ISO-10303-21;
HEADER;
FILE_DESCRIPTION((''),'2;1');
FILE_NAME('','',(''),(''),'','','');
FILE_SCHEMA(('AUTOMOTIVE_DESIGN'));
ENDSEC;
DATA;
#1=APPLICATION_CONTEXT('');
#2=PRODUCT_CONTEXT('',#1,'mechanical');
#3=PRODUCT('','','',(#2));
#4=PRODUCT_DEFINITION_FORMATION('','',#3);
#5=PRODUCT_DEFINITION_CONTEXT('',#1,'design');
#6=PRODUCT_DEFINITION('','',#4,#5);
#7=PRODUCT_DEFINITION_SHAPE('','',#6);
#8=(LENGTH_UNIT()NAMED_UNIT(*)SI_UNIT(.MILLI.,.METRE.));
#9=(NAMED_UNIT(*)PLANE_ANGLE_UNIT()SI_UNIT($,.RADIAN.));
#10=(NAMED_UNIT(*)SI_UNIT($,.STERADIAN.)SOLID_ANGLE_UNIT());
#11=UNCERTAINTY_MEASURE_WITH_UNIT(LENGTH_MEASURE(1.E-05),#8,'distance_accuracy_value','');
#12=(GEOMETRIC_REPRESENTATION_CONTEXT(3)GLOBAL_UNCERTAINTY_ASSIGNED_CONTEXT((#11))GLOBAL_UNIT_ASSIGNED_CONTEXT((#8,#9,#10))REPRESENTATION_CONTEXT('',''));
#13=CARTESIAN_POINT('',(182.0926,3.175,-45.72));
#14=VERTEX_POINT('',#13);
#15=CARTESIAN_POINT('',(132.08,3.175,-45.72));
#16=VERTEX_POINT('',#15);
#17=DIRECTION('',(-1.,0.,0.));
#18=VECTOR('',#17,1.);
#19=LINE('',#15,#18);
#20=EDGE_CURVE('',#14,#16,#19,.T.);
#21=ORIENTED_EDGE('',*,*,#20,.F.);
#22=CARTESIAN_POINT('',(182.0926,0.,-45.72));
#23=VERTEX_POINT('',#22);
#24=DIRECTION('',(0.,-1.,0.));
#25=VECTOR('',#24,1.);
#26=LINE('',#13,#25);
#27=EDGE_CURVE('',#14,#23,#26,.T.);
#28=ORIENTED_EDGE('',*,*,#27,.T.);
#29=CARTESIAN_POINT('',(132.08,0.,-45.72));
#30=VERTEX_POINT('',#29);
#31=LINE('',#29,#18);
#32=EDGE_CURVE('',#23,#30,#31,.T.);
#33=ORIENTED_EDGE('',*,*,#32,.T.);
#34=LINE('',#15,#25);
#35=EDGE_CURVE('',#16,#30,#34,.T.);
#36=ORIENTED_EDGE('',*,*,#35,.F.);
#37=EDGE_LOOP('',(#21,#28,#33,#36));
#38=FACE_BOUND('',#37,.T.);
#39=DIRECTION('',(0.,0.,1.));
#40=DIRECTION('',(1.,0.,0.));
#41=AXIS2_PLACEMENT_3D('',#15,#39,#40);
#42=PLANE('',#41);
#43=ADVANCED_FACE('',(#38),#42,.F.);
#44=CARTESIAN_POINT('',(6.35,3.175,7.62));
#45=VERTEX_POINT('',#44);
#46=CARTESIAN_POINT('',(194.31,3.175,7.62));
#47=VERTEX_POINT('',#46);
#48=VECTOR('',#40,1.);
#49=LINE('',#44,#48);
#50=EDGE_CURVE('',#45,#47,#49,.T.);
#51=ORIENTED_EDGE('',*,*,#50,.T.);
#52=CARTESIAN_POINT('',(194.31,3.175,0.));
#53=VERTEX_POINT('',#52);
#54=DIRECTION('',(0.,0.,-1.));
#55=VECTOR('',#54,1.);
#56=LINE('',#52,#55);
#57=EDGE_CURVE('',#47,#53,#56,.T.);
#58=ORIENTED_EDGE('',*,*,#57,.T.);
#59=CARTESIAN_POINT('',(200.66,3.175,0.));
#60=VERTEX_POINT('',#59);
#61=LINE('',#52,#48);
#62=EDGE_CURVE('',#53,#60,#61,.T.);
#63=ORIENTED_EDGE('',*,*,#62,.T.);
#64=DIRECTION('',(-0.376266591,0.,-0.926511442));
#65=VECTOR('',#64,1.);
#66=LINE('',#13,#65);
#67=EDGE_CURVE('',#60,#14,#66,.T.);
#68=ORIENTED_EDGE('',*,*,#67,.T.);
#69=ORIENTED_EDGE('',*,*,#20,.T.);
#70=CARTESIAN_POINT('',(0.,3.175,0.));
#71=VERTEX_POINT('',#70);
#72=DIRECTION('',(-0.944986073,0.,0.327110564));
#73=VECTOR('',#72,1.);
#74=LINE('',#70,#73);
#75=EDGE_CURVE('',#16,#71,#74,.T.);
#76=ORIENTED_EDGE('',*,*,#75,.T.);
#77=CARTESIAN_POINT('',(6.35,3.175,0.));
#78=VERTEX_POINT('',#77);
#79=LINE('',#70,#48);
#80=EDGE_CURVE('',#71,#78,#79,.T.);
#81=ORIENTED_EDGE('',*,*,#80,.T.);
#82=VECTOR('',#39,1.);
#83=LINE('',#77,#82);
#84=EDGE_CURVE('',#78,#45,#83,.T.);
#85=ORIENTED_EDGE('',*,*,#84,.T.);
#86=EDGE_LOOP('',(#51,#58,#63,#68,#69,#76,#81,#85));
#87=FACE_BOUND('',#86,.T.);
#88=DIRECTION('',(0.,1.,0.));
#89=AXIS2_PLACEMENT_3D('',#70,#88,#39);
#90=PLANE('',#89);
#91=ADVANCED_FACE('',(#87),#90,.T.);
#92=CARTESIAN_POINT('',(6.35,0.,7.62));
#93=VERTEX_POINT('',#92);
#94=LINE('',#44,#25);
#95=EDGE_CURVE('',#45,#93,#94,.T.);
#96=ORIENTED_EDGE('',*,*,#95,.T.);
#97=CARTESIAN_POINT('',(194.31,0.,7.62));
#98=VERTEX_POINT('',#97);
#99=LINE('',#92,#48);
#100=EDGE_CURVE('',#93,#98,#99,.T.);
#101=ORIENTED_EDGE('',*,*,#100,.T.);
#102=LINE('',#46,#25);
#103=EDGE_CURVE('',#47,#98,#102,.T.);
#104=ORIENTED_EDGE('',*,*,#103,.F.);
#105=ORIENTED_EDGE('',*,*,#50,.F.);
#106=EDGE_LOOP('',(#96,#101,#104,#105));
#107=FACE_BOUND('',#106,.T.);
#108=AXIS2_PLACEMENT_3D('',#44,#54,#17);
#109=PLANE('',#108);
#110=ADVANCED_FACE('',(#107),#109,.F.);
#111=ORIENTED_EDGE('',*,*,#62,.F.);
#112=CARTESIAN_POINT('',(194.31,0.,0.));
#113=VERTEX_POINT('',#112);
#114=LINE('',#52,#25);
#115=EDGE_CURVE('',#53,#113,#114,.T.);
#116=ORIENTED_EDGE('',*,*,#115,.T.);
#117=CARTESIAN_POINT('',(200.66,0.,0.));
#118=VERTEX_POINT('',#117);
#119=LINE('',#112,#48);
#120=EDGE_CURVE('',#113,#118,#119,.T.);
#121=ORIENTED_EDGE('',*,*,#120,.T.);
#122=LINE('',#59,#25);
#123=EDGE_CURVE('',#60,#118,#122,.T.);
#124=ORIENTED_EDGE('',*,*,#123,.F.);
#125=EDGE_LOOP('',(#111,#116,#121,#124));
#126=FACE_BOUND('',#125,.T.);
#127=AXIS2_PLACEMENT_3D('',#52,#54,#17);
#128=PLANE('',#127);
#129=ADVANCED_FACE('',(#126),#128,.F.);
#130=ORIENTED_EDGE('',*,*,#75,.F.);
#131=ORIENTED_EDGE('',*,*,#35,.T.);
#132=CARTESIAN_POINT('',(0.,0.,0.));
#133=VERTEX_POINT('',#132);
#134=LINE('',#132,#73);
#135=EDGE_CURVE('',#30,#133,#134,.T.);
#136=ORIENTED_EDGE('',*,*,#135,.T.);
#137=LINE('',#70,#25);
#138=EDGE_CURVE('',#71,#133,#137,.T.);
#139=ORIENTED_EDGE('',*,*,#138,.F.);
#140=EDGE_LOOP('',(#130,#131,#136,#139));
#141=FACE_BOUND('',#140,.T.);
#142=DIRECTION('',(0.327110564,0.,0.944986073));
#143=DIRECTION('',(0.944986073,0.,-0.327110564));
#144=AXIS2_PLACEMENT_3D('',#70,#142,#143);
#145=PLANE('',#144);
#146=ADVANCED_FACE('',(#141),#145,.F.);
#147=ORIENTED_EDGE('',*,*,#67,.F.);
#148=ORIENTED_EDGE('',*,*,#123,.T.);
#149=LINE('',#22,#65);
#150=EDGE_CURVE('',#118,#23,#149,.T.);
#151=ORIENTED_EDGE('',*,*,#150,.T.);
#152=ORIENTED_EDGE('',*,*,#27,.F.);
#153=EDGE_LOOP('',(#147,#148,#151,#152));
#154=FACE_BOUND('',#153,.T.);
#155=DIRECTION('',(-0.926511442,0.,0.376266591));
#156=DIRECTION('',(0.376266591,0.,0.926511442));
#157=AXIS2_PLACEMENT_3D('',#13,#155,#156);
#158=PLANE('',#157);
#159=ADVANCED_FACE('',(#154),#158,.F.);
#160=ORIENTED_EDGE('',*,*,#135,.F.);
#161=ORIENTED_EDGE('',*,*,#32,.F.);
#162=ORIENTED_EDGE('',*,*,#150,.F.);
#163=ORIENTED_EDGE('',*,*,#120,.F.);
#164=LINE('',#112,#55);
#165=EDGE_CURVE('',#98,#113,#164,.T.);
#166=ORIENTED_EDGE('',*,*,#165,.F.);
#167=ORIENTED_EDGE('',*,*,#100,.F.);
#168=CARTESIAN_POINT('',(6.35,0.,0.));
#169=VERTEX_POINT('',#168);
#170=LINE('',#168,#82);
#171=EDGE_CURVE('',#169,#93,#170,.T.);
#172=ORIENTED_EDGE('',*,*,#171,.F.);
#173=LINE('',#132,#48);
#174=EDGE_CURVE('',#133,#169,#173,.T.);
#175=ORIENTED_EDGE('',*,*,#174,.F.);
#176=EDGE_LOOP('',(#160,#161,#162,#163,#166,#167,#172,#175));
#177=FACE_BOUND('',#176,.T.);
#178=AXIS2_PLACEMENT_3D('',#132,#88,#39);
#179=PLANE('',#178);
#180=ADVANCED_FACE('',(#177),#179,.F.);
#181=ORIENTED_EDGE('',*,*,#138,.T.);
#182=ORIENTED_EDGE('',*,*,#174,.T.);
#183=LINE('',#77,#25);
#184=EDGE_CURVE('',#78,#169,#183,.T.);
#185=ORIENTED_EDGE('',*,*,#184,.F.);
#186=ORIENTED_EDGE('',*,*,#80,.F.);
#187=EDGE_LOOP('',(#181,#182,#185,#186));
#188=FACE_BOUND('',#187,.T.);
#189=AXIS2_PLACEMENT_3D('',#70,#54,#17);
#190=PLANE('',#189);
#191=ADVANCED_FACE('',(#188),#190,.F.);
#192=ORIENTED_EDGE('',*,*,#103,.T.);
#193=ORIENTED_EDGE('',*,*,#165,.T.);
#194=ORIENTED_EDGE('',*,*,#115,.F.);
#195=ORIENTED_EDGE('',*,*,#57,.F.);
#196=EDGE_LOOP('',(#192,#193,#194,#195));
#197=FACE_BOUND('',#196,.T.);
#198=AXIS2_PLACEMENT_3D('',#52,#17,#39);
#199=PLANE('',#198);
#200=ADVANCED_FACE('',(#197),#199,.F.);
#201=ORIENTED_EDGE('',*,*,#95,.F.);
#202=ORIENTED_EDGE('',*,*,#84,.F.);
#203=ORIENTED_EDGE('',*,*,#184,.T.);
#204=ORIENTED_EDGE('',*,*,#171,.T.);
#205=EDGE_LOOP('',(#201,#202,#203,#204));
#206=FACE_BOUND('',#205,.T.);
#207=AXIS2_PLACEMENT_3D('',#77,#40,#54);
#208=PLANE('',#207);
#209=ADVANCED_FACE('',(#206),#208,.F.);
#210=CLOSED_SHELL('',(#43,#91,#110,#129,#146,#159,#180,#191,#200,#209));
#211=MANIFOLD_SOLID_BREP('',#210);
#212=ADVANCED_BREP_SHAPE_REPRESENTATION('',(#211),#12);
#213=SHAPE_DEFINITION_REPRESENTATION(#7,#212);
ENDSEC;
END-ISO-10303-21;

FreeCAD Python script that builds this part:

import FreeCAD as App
import Part
import Sketcher
from FreeCAD import Vector
Q = App.Units.Quantity

doc = App.newDocument("Part")
body = doc.addObject("PartDesign::Body", "Body")

sketch1 = body.newObject("Sketcher::SketchObject", "Sketch")
sketch1.AttachmentSupport = (doc.getObject("XZ_Plane"), [""])
sketch1.MapMode = "FlatFace"
sketch1.addGeometry(Part.LineSegment(Vector(132, -46, 0), Vector(0, 0, 0)), False)
sketch1.addGeometry(Part.LineSegment(Vector(0, 0, 0), Vector(6, 0, 0)), False)
sketch1.addGeometry(Part.LineSegment(Vector(6, 0, 0), Vector(6, 8, 0)), False)
sketch1.addGeometry(Part.LineSegment(Vector(6, 8, 0), Vector(194, 8, 0)), False)
sketch1.addGeometry(Part.LineSegment(Vector(194, 8, 0), Vector(194, 0, 0)), False)
sketch1.addGeometry(Part.LineSegment(Vector(194, 0, 0), Vector(201, 0, 0)), False)
sketch1.addGeometry(Part.LineSegment(Vector(201, 0, 0), Vector(182, -46, 0)), False)
sketch1.addGeometry(Part.LineSegment(Vector(182, -46, 0), Vector(132, -46, 0)), False)
sketch1.addConstraint(Sketcher.Constraint("Coincident", 0, 2, 1, 1))
sketch1.addConstraint(Sketcher.Constraint("Coincident", 1, 2, 2, 1))
sketch1.addConstraint(Sketcher.Constraint("Coincident", 2, 2, 3, 1))
sketch1.addConstraint(Sketcher.Constraint("Coincident", 3, 2, 4, 1))
sketch1.addConstraint(Sketcher.Constraint("Coincident", 4, 2, 5, 1))
sketch1.addConstraint(Sketcher.Constraint("Coincident", 5, 2, 6, 1))
sketch1.addConstraint(Sketcher.Constraint("Coincident", 6, 2, 7, 1))
sketch1.addConstraint(Sketcher.Constraint("Coincident", 7, 2, 0, 1))
sketch1.addConstraint(Sketcher.Constraint("Horizontal", 1))
sketch1.addConstraint(Sketcher.Constraint("Vertical", 2))
sketch1.addConstraint(Sketcher.Constraint("Horizontal", 3))
sketch1.addConstraint(Sketcher.Constraint("Vertical", 4))
sketch1.addConstraint(Sketcher.Constraint("Horizontal", 5))
sketch1.addConstraint(Sketcher.Constraint("Horizontal", 7))
sketch1.addConstraint(Sketcher.Constraint("Coincident", 0, 2, -1, 1))
sketch1.addConstraint(Sketcher.Constraint("PointOnObject", 4, 2, -1))
sketch1.addConstraint(Sketcher.Constraint("Equal", 1, 5))
sketch1.addConstraint(Sketcher.Constraint("DistanceX", 3, 1, 3, 2, Q("7.4 in")))
sketch1.addConstraint(Sketcher.Constraint("DistanceY", 2, 1, 2, 2, Q("0.3 in")))
sketch1.addConstraint(Sketcher.Constraint("DistanceX", 1, 1, 1, 2, Q("0.25 in")))
sketch1.addConstraint(Sketcher.Constraint("DistanceY", 6, 2, -1, 1, Q("1.8 in")))
sketch1.addConstraint(Sketcher.Constraint("DistanceX", -1, 1, 7, 2, Q("5.2 in")))
sketch1.addConstraint(Sketcher.Constraint("DistanceX", 7, 2, 7, 1, Q("1.969 in")))
pad1 = body.newObject("PartDesign::Pad", "Pad")
pad1.Profile = sketch1
pad1.Length = Q("0.125 in")
pad1.Reversed = True

doc.recompute()
